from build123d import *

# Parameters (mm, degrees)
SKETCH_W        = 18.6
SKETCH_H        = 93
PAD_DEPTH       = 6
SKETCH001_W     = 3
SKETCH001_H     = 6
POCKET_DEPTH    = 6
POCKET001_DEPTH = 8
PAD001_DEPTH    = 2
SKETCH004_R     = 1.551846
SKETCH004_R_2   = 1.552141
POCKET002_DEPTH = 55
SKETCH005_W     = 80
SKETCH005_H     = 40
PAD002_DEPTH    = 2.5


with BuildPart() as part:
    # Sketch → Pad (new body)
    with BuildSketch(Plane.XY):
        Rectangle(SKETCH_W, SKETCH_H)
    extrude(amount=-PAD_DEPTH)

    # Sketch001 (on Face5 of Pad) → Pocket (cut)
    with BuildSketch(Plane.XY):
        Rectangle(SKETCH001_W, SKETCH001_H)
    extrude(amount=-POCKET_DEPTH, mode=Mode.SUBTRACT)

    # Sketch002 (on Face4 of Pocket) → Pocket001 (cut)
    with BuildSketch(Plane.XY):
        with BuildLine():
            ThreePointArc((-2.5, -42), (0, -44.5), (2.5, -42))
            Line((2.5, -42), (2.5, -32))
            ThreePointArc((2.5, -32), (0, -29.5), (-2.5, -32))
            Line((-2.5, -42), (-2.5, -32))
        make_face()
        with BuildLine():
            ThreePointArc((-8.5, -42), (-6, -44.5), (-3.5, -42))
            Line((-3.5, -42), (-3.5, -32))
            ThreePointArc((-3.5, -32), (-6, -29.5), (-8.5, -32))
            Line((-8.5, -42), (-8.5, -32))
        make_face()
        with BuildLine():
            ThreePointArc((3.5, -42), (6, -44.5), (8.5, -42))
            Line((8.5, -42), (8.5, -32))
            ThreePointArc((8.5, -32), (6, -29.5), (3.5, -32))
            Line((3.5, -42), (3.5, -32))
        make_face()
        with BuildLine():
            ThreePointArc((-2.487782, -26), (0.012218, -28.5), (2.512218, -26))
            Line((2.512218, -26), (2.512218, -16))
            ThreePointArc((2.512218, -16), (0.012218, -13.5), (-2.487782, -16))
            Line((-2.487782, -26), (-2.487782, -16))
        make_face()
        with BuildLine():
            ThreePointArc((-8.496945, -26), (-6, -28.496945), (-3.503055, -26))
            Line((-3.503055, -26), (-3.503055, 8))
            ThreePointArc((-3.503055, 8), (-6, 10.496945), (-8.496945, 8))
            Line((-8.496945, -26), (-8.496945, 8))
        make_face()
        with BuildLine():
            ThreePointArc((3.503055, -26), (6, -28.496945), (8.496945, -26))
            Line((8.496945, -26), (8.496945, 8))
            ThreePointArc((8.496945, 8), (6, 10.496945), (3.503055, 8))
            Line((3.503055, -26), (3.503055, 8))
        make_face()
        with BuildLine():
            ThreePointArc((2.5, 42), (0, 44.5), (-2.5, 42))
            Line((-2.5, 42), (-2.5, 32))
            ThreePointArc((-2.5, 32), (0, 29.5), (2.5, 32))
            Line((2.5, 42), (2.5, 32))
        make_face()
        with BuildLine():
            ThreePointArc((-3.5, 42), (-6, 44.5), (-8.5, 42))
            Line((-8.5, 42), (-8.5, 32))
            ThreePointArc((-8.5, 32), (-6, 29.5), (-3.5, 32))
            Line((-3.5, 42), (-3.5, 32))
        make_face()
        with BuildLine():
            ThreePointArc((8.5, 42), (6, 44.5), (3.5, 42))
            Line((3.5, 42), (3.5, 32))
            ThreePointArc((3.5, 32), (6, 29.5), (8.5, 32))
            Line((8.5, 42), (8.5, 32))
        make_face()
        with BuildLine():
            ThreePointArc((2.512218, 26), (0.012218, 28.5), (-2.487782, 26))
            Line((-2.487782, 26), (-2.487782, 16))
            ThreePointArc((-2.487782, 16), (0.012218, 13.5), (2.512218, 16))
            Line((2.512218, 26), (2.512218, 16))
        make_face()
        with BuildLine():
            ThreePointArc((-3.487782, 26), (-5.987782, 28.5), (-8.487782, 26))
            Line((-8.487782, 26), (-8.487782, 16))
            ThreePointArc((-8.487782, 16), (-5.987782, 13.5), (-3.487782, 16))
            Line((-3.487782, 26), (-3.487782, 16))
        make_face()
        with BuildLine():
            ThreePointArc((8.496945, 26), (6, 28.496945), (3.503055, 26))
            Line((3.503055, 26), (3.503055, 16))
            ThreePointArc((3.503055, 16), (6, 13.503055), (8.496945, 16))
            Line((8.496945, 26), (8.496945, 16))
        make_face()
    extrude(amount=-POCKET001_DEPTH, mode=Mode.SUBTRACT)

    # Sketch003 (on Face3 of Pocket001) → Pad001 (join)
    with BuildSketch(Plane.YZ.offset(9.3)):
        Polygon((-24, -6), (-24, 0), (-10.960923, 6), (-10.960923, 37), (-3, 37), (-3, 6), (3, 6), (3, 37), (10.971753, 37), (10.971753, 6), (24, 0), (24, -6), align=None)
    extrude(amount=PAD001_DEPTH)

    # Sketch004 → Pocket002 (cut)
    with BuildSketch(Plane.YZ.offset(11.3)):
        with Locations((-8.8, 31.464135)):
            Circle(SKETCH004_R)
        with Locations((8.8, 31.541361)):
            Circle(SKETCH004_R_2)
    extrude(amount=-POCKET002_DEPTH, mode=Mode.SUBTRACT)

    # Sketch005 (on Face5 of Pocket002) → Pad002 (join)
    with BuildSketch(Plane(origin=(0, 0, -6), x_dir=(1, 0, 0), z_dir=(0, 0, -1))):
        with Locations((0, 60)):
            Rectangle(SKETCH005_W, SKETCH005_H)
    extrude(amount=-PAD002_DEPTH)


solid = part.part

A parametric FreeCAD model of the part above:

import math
import FreeCAD as App
import Part
import Sketcher
from FreeCAD import Vector


def add_polygon(sketch, points):
    """Adds a closed chain of lines whose ends are joined by coincident constraints."""
    first, n = sketch.GeometryCount, len(points)
    for a, b in zip(points, points[1:] + points[:1]):
        sketch.addGeometry(Part.LineSegment(App.Vector(*a, 0), App.Vector(*b, 0)), False)
    for i in range(n):
        sketch.addConstraint(Sketcher.Constraint("Coincident", first + i, 2, first + (i + 1) % n, 1))

doc = App.newDocument("Part")
body = doc.addObject("PartDesign::Body", "Body")

# Sketch on XY plane
sketch1 = doc.addObject("Sketcher::SketchObject", "Sketch")
body.addObject(sketch1)
sketch1.AttachmentSupport = (doc.XY_Plane, [""])
sketch1.MapMode = "FlatFace"
add_polygon(sketch1, [(-9, 46), (-9, -46), (9, -46), (9, 46)])  # lines 0-3
sketch1.addConstraint(Sketcher.Constraint("Vertical", 0))
sketch1.addConstraint(Sketcher.Constraint("Horizontal", 1))
sketch1.addConstraint(Sketcher.Constraint("Vertical", 2))
sketch1.addConstraint(Sketcher.Constraint("Horizontal", 3))
sketch1.addConstraint(Sketcher.Constraint("Symmetric", 0, 2, 2, 2, -1, 1))
sketch1.addConstraint(Sketcher.Constraint("DistanceY", 0, 2, 0, 1, 93.0))
sketch1.addConstraint(Sketcher.Constraint("DistanceX", 1, 1, 1, 2, 18.6))
pad1 = doc.addObject("PartDesign::Pad", "Pad")
body.addObject(pad1)
pad1.Profile = sketch1
pad1.Length = 6
pad1.Reversed = True

# Sketch on XY plane
sketch2 = doc.addObject("Sketcher::SketchObject", "Sketch001")
body.addObject(sketch2)
sketch2.AttachmentSupport = (doc.XY_Plane, [""])
sketch2.MapMode = "FlatFace"
add_polygon(sketch2, [(-1.5, 3), (-1.5, -3), (1.5, -3), (1.5, 3)])  # lines 0-3
sketch2.addConstraint(Sketcher.Constraint("Vertical", 0))
sketch2.addConstraint(Sketcher.Constraint("Horizontal", 1))
sketch2.addConstraint(Sketcher.Constraint("Vertical", 2))
sketch2.addConstraint(Sketcher.Constraint("Horizontal", 3))
sketch2.addConstraint(Sketcher.Constraint("Symmetric", 0, 2, 2, 2, -1, 1))
sketch2.addConstraint(Sketcher.Constraint("DistanceX", 1, 1, 1, 2, 3.0))
sketch2.addConstraint(Sketcher.Constraint("DistanceY", 0, 2, 0, 1, 6.0))
pocket1 = doc.addObject("PartDesign::Pocket", "Pocket")
body.addObject(pocket1)
pocket1.Profile = sketch2
pocket1.Length = 6

# Sketch on XY plane
sketch3 = doc.addObject("Sketcher::SketchObject", "Sketch002")
body.addObject(sketch3)
sketch3.AttachmentSupport = (doc.XY_Plane, [""])
sketch3.MapMode = "FlatFace"
sketch3.addGeometry(Part.ArcOfCircle(Part.Circle(Vector(0, -42, 0), Vector(0, 0, 1), 2.5), math.radians(180), math.radians(360)), False)
sketch3.addGeometry(Part.LineSegment(Vector(2.5, -42, 0), Vector(2.5, -32, 0)), False)
sketch3.addGeometry(Part.ArcOfCircle(Part.Circle(Vector(0, -32, 0), Vector(0, 0, 1), 2.5), math.radians(0), math.radians(180)), False)
sketch3.addGeometry(Part.LineSegment(Vector(-2.5, -32, 0), Vector(-2.5, -42, 0)), False)
sketch3.addGeometry(Part.ArcOfCircle(Part.Circle(Vector(-6, -42, 0), Vector(0, 0, 1), 2.5), math.radians(180), math.radians(360)), False)
sketch3.addGeometry(Part.LineSegment(Vector(-3.5, -42, 0), Vector(-3.5, -32, 0)), False)
sketch3.addGeometry(Part.ArcOfCircle(Part.Circle(Vector(-6, -32, 0), Vector(0, 0, 1), 2.5), math.radians(0), math.radians(180)), False)
sketch3.addGeometry(Part.LineSegment(Vector(-8.5, -32, 0), Vector(-8.5, -42, 0)), False)
sketch3.addGeometry(Part.ArcOfCircle(Part.Circle(Vector(6, -42, 0), Vector(0, 0, 1), 2.5), math.radians(180), math.radians(360)), False)
sketch3.addGeometry(Part.LineSegment(Vector(8.5, -42, 0), Vector(8.5, -32, 0)), False)
sketch3.addGeometry(Part.ArcOfCircle(Part.Circle(Vector(6, -32, 0), Vector(0, 0, 1), 2.5), math.radians(0), math.radians(180)), False)
sketch3.addGeometry(Part.LineSegment(Vector(3.5, -32, 0), Vector(3.5, -42, 0)), False)
sketch3.addGeometry(Part.ArcOfCircle(Part.Circle(Vector(0, -26, 0), Vector(0, 0, 1), 2.5), math.radians(180), math.radians(360)), False)
sketch3.addGeometry(Part.LineSegment(Vector(2.5, -26, 0), Vector(2.5, -16, 0)), False)
sketch3.addGeometry(Part.ArcOfCircle(Part.Circle(Vector(0, -16, 0), Vector(0, 0, 1), 2.5), math.radians(0), math.radians(180)), False)
sketch3.addGeometry(Part.LineSegment(Vector(-2.5, -16, 0), Vector(-2.5, -26, 0)), False)
sketch3.addGeometry(Part.ArcOfCircle(Part.Circle(Vector(-6, -26, 0), Vector(0, 0, 1), 2.5), math.radians(180), math.radians(360)), False)
sketch3.addGeometry(Part.LineSegment(Vector(-3.5, -26, 0), Vector(-3.5, 8, 0)), False)
sketch3.addGeometry(Part.ArcOfCircle(Part.Circle(Vector(-6, 8, 0), Vector(0, 0, 1), 2.5), math.radians(0), math.radians(180)), False)
sketch3.addGeometry(Part.LineSegment(Vector(-8.5, 8, 0), Vector(-8.5, -26, 0)), False)
sketch3.addGeometry(Part.ArcOfCircle(Part.Circle(Vector(6, -26, 0), Vector(0, 0, 1), 2.5), math.radians(180), math.radians(360)), False)
sketch3.addGeometry(Part.LineSegment(Vector(8.5, -26, 0), Vector(8.5, 8, 0)), False)
sketch3.addGeometry(Part.ArcOfCircle(Part.Circle(Vector(6, 8, 0), Vector(0, 0, 1), 2.5), math.radians(0), math.radians(180)), False)
sketch3.addGeometry(Part.LineSegment(Vector(3.5, 8, 0), Vector(3.5, -26, 0)), False)
sketch3.addGeometry(Part.ArcOfCircle(Part.Circle(Vector(0, 42, 0), Vector(0, 0, 1), 2.5), math.radians(0), math.radians(180)), False)
sketch3.addGeometry(Part.LineSegment(Vector(-2.5, 42, 0), Vector(-2.5, 32, 0)), False)
sketch3.addGeometry(Part.ArcOfCircle(Part.Circle(Vector(0, 32, 0), Vector(0, 0, 1), 2.5), math.radians(180), math.radians(360)), False)
sketch3.addGeometry(Part.LineSegment(Vector(2.5, 32, 0), Vector(2.5, 42, 0)), False)
sketch3.addGeometry(Part.ArcOfCircle(Part.Circle(Vector(-6, 42, 0), Vector(0, 0, 1), 2.5), math.radians(0), math.radians(180)), False)
sketch3.addGeometry(Part.LineSegment(Vector(-8.5, 42, 0), Vector(-8.5, 32, 0)), False)
sketch3.addGeometry(Part.ArcOfCircle(Part.Circle(Vector(-6, 32, 0), Vector(0, 0, 1), 2.5), math.radians(180), math.radians(360)), False)
sketch3.addGeometry(Part.LineSegment(Vector(-3.5, 32, 0), Vector(-3.5, 42, 0)), False)
sketch3.addGeometry(Part.ArcOfCircle(Part.Circle(Vector(6, 42, 0), Vector(0, 0, 1), 2.5), math.radians(0), math.radians(180)), False)
sketch3.addGeometry(Part.LineSegment(Vector(3.5, 42, 0), Vector(3.5, 32, 0)), False)
sketch3.addGeometry(Part.ArcOfCircle(Part.Circle(Vector(6, 32, 0), Vector(0, 0, 1), 2.5), math.radians(180), math.radians(360)), False)
sketch3.addGeometry(Part.LineSegment(Vector(8.5, 32, 0), Vector(8.5, 42, 0)), False)
sketch3.addGeometry(Part.ArcOfCircle(Part.Circle(Vector(0, 26, 0), Vector(0, 0, 1), 2.5), math.radians(0), math.radians(180)), False)
sketch3.addGeometry(Part.LineSegment(Vector(-2.5, 26, 0), Vector(-2.5, 16, 0)), False)
sketch3.addGeometry(Part.ArcOfCircle(Part.Circle(Vector(0, 16, 0), Vector(0, 0, 1), 2.5), math.radians(180), math.radians(360)), False)
sketch3.addGeometry(Part.LineSegment(Vector(2.5, 16, 0), Vector(2.5, 26, 0)), False)
sketch3.addGeometry(Part.ArcOfCircle(Part.Circle(Vector(-6, 26, 0), Vector(0, 0, 1), 2.5), math.radians(0), math.radians(180)), False)
sketch3.addGeometry(Part.LineSegment(Vector(-8.5, 26, 0), Vector(-8.5, 16, 0)), False)
sketch3.addGeometry(Part.ArcOfCircle(Part.Circle(Vector(-6, 16, 0), Vector(0, 0, 1), 2.5), math.radians(180), math.radians(360)), False)
sketch3.addGeometry(Part.LineSegment(Vector(-3.5, 16, 0), Vector(-3.5, 26, 0)), False)
sketch3.addGeometry(Part.ArcOfCircle(Part.Circle(Vector(6, 26, 0), Vector(0, 0, 1), 2.5), math.radians(0), math.radians(180)), False)
sketch3.addGeometry(Part.LineSegment(Vector(3.5, 26, 0), Vector(3.5, 16, 0)), False)
sketch3.addGeometry(Part.ArcOfCircle(Part.Circle(Vector(6, 16, 0), Vector(0, 0, 1), 2.5), math.radians(180), math.radians(360)), False)
sketch3.addGeometry(Part.LineSegment(Vector(8.5, 16, 0), Vector(8.5, 26, 0)), False)
sketch3.addConstraint(Sketcher.Constraint("Tangent", 0, 2, 1, 1))
sketch3.addConstraint(Sketcher.Constraint("Tangent", 1, 2, 2, 1))
sketch3.addConstraint(Sketcher.Constraint("Tangent", 2, 2, 3, 1))
sketch3.addConstraint(Sketcher.Constraint("Tangent", 3, 2, 0, 1))
sketch3.addConstraint(Sketcher.Constraint("Tangent", 4, 2, 5, 1))
sketch3.addConstraint(Sketcher.Constraint("Tangent", 5, 2, 6, 1))
sketch3.addConstraint(Sketcher.Constraint("Tangent", 6, 2, 7, 1))
sketch3.addConstraint(Sketcher.Constraint("Tangent", 7, 2, 4, 1))
sketch3.addConstraint(Sketcher.Constraint("Tangent", 8, 2, 9, 1))
sketch3.addConstraint(Sketcher.Constraint("Tangent", 9, 2, 10, 1))
sketch3.addConstraint(Sketcher.Constraint("Tangent", 10, 2, 11, 1))
sketch3.addConstraint(Sketcher.Constraint("Tangent", 11, 2, 8, 1))
sketch3.addConstraint(Sketcher.Constraint("Tangent", 12, 2, 13, 1))
sketch3.addConstraint(Sketcher.Constraint("Tangent", 13, 2, 14, 1))
sketch3.addConstraint(Sketcher.Constraint("Tangent", 14, 2, 15, 1))
sketch3.addConstraint(Sketcher.Constraint("Tangent", 15, 2, 12, 1))
sketch3.addConstraint(Sketcher.Constraint("Tangent", 16, 2, 17, 1))
sketch3.addConstraint(Sketcher.Constraint("Tangent", 17, 2, 18, 1))
sketch3.addConstraint(Sketcher.Constraint("Tangent", 18, 2, 19, 1))
sketch3.addConstraint(Sketcher.Constraint("Tangent", 19, 2, 16, 1))
sketch3.addConstraint(Sketcher.Constraint("Tangent", 20, 2, 21, 1))
sketch3.addConstraint(Sketcher.Constraint("Tangent", 21, 2, 22, 1))
sketch3.addConstraint(Sketcher.Constraint("Tangent", 22, 2, 23, 1))
sketch3.addConstraint(Sketcher.Constraint("Tangent", 23, 2, 20, 1))
sketch3.addConstraint(Sketcher.Constraint("Tangent", 24, 2, 25, 1))
sketch3.addConstraint(Sketcher.Constraint("Tangent", 25, 2, 26, 1))
sketch3.addConstraint(Sketcher.Constraint("Tangent", 26, 2, 27, 1))
sketch3.addConstraint(Sketcher.Constraint("Tangent", 27, 2, 24, 1))
sketch3.addConstraint(Sketcher.Constraint("Tangent", 28, 2, 29, 1))
sketch3.addConstraint(Sketcher.Constraint("Tangent", 29, 2, 30, 1))
sketch3.addConstraint(Sketcher.Constraint("Tangent", 30, 2, 31, 1))
sketch3.addConstraint(Sketcher.Constraint("Tangent", 31, 2, 28, 1))
sketch3.addConstraint(Sketcher.Constraint("Tangent", 32, 2, 33, 1))
sketch3.addConstraint(Sketcher.Constraint("Tangent", 33, 2, 34, 1))
sketch3.addConstraint(Sketcher.Constraint("Tangent", 34, 2, 35, 1))
sketch3.addConstraint(Sketcher.Constraint("Tangent", 35, 2, 32, 1))
sketch3.addConstraint(Sketcher.Constraint("Tangent", 36, 2, 37, 1))
sketch3.addConstraint(Sketcher.Constraint("Tangent", 37, 2, 38, 1))
sketch3.addConstraint(Sketcher.Constraint("Tangent", 38, 2, 39, 1))
sketch3.addConstraint(Sketcher.Constraint("Tangent", 39, 2, 36, 1))
sketch3.addConstraint(Sketcher.Constraint("Tangent", 40, 2, 41, 1))
sketch3.addConstraint(Sketcher.Constraint("Tangent", 41, 2, 42, 1))
sketch3.addConstraint(Sketcher.Constraint("Tangent", 42, 2, 43, 1))
sketch3.addConstraint(Sketcher.Constraint("Tangent", 43, 2, 40, 1))
sketch3.addConstraint(Sketcher.Constraint("Tangent", 44, 2, 45, 1))
sketch3.addConstraint(Sketcher.Constraint("Tangent", 45, 2, 46, 1))
sketch3.addConstraint(Sketcher.Constraint("Tangent", 46, 2, 47, 1))
sketch3.addConstraint(Sketcher.Constraint("Tangent", 47, 2, 44, 1))
sketch3.addConstraint(Sketcher.Constraint("Vertical", 1))
sketch3.addConstraint(Sketcher.Constraint("Vertical", 3))
sketch3.addConstraint(Sketcher.Constraint("Vertical", 5))
sketch3.addConstraint(Sketcher.Constraint("Vertical", 7))
sketch3.addConstraint(Sketcher.Constraint("Vertical", 9))
sketch3.addConstraint(Sketcher.Constraint("Vertical", 11))
sketch3.addConstraint(Sketcher.Constraint("Vertical", 13))
sketch3.addConstraint(Sketcher.Constraint("Vertical", 15))
sketch3.addConstraint(Sketcher.Constraint("Vertical", 17))
sketch3.addConstraint(Sketcher.Constraint("Vertical", 19))
sketch3.addConstraint(Sketcher.Constraint("Vertical", 21))
sketch3.addConstraint(Sketcher.Constraint("Vertical", 23))
sketch3.addConstraint(Sketcher.Constraint("Vertical", 25))
sketch3.addConstraint(Sketcher.Constraint("Vertical", 27))
sketch3.addConstraint(Sketcher.Constraint("Vertical", 29))
sketch3.addConstraint(Sketcher.Constraint("Vertical", 31))
sketch3.addConstraint(Sketcher.Constraint("Vertical", 33))
sketch3.addConstraint(Sketcher.Constraint("Vertical", 35))
sketch3.addConstraint(Sketcher.Constraint("Vertical", 37))
sketch3.addConstraint(Sketcher.Constraint("Vertical", 39))
sketch3.addConstraint(Sketcher.Constraint("Vertical", 41))
sketch3.addConstraint(Sketcher.Constraint("Vertical", 43))
sketch3.addConstraint(Sketcher.Constraint("Vertical", 45))
sketch3.addConstraint(Sketcher.Constraint("Vertical", 47))
sketch3.addConstraint(Sketcher.Constraint("Equal", 2, 4))
sketch3.addConstraint(Sketcher.Constraint("Equal", 6, 8))
sketch3.addConstraint(Sketcher.Constraint("Equal", 10, 12))
sketch3.addConstraint(Sketcher.Constraint("Equal", 18, 20))
sketch3.addConstraint(Sketcher.Constraint("Equal", 14, 24))
sketch3.addConstraint(Sketcher.Constraint("Equal", 26, 28))
sketch3.addConstraint(Sketcher.Constraint("Equal", 30, 32))
sketch3.addConstraint(Sketcher.Constraint("Equal", 34, 36))
sketch3.addConstraint(Sketcher.Constraint("Equal", 38, 40))
sketch3.addConstraint(Sketcher.Constraint("Equal", 22, 44))
sketch3.addConstraint(Sketcher.Constraint("Symmetric", 0, 3, 24, 3, -1, 1))
sketch3.addConstraint(Sketcher.Constraint("Symmetric", 8, 3, 28, 3, -1, 1))
sketch3.addConstraint(Sketcher.Constraint("Symmetric", 4, 3, 32, 3, -1, 1))
sketch3.addConstraint(Sketcher.Constraint("Symmetric", 16, 3, 44, 3, -1, 1))
sketch3.addConstraint(Sketcher.Constraint("Symmetric", 4, 3, 8, 3, -2))
sketch3.addConstraint(Sketcher.Constraint("Symmetric", 16, 3, 20, 3, -2))
sketch3.addConstraint(Sketcher.Constraint("Symmetric", 2, 3, 26, 3, -1))
sketch3.addConstraint(Sketcher.Constraint("Symmetric", 12, 3, 36, 3, -1))
sketch3.addConstraint(Sketcher.Constraint("Horizontal", 0, 3, 4, 3))
sketch3.addConstraint(Sketcher.Constraint("Horizontal", 2, 3, 6, 3))
sketch3.addConstraint(Sketcher.Constraint("Horizontal", 6, 3, 10, 3))
sketch3.addConstraint(Sketcher.Constraint("Horizontal", 12, 3, 16, 3))
sketch3.addConstraint(Sketcher.Constraint("Horizontal", 18, 3, 22, 3))
sketch3.addConstraint(Sketcher.Constraint("Horizontal", 26, 3, 30, 3))
sketch3.addConstraint(Sketcher.Constraint("Horizontal", 30, 3, 34, 3))
sketch3.addConstraint(Sketcher.Constraint("Horizontal", 36, 3, 40, 3))
sketch3.addConstraint(Sketcher.Constraint("Horizontal", 38, 3, 42, 3))
sketch3.addConstraint(Sketcher.Constraint("Horizontal", 42, 3, 46, 3))
sketch3.addConstraint(Sketcher.Constraint("Vertical", 6, 3, 16, 3))
sketch3.addConstraint(Sketcher.Constraint("Equal", 11, 13))
sketch3.addConstraint(Sketcher.Constraint("Equal", 35, 37))
sketch3.addConstraint(Sketcher.Constraint("Radius", 0, 2.5))
sketch3.addConstraint(Sketcher.Constraint("DistanceY", 1, 1, 1, 2, 10.0))
sketch3.addConstraint(Sketcher.Constraint("DistanceY", 17, 1, 17, 2, 34.0))
sketch3.addConstraint(Sketcher.Constraint("DistanceY", 0, 3, -1, 1, 42.0))
sketch3.addConstraint(Sketcher.Constraint("DistanceX", 4, 3, -1, 1, 6.0))
sketch3.addConstraint(Sketcher.Constraint("DistanceY", 12, 3, -1, 1, 26.0))
sketch3.addConstraint(Sketcher.Constraint("Radius", 16, 2.496945))
sketch3.addConstraint(Sketcher.Constraint("DistanceX", 40, 2, -1, 1, 8.487782))
sketch3.addConstraint(Sketcher.Constraint("DistanceX", -1, 1, 12, 3, 0.012218))
pocket2 = doc.addObject("PartDesign::Pocket", "Pocket001")
body.addObject(pocket2)
pocket2.Profile = sketch3
pocket2.Length = 8

# Sketch on YZ plane
sketch4 = doc.addObject("Sketcher::SketchObject", "Sketch003")
body.addObject(sketch4)
sketch4.AttachmentSupport = (doc.YZ_Plane, [""])
sketch4.MapMode = "FlatFace"
sketch4.AttachmentOffset = App.Placement(Vector(0, 0, 9.3), App.Rotation())
add_polygon(sketch4, [(-24, 0), (-24, -6), (24, -6), (24, 0), (11, 6), (11, 37), (3, 37), (3, 6), (-3, 6), (-3, 37), (-11, 37), (-11, 6)])  # lines 0-11
sketch4.addConstraint(Sketcher.Constraint("Vertical", 0))
sketch4.addConstraint(Sketcher.Constraint("Horizontal", 1))
sketch4.addConstraint(Sketcher.Constraint("Vertical", 2))
sketch4.addConstraint(Sketcher.Constraint("Vertical", 4))
sketch4.addConstraint(Sketcher.Constraint("Horizontal", 5))
sketch4.addConstraint(Sketcher.Constraint("Vertical", 6))
sketch4.addConstraint(Sketcher.Constraint("Horizontal", 7))
sketch4.addConstraint(Sketcher.Constraint("Vertical", 8))
sketch4.addConstraint(Sketcher.Constraint("Horizontal", 9))
sketch4.addConstraint(Sketcher.Constraint("Vertical", 10))
sketch4.addConstraint(Sketcher.Constraint("Symmetric", 2, 2, 11, 2, -1, 1))
sketch4.addConstraint(Sketcher.Constraint("Symmetric", 5, 2, 8, 2, -2))
sketch4.addConstraint(Sketcher.Constraint("PointOnObject", 2, 2, -1))
sketch4.addConstraint(Sketcher.Constraint("Horizontal", 3, 2, 6, 2))
sketch4.addConstraint(Sketcher.Constraint("Horizontal", 7, 2, 10, 2))
sketch4.addConstraint(Sketcher.Constraint("Equal", 7, 0))
sketch4.addConstraint(Sketcher.Constraint("DistanceX", 1, 1, 1, 2, 48.0))
sketch4.addConstraint(Sketcher.Constraint("DistanceX", 7, 2, 7, 1, 6.0))
sketch4.addConstraint(Sketcher.Constraint("DistanceY", 4, 1, 4, 2, 31.0))
sketch4.addConstraint(Sketcher.Constraint("DistanceY", -1, 1, 3, 2, 6.0))
sketch4.addConstraint(Sketcher.Constraint("Distance", 11, 14.353311))
sketch4.addConstraint(Sketcher.Constraint("DistanceX", 5, 2, 5, 1, 7.971753))
pad2 = doc.addObject("PartDesign::Pad", "Pad001")
body.addObject(pad2)
pad2.Profile = sketch4
pad2.Length = 2

# Sketch on YZ plane
sketch5 = doc.addObject("Sketcher::SketchObject", "Sketch004")
body.addObject(sketch5)
sketch5.AttachmentSupport = (doc.YZ_Plane, [""])
sketch5.MapMode = "FlatFace"
sketch5.AttachmentOffset = App.Placement(Vector(0, 0, 11.3), App.Rotation())
sketch5.addGeometry(Part.Circle(Vector(-8.8, 31.5, 0), Vector(0, 0, 1), 1.6), False)
sketch5.addGeometry(Part.Circle(Vector(8.8, 31.5, 0), Vector(0, 0, 1), 1.6), False)
sketch5.addConstraint(Sketcher.Constraint("DistanceX", 0, 3, -1, 1, 8.8))
sketch5.addConstraint(Sketcher.Constraint("DistanceX", -1, 1, 1, 3, 8.8))
sketch5.addConstraint(Sketcher.Constraint("Diameter", 1, 3.104282))
sketch5.addConstraint(Sketcher.Constraint("Diameter", 0, 3.103692))
sketch5.addConstraint(Sketcher.Constraint("DistanceY", -1, 1, 1, 3, 31.541361))
sketch5.addConstraint(Sketcher.Constraint("DistanceY", -1, 1, 0, 3, 31.464135))
pocket3 = doc.addObject("PartDesign::Pocket", "Pocket002")
body.addObject(pocket3)
pocket3.Profile = sketch5
pocket3.Length = 55

# Sketch on XY plane
sketch6 = doc.addObject("Sketcher::SketchObject", "Sketch005")
body.addObject(sketch6)
sketch6.AttachmentSupport = (doc.XY_Plane, [""])
sketch6.MapMode = "FlatFace"
sketch6.AttachmentOffset = App.Placement(Vector(0, 0, -6), App.Rotation())
add_polygon(sketch6, [(-40, -80), (-40, -40), (40, -40), (40, -80)])  # lines 0-3
sketch6.addConstraint(Sketcher.Constraint("Vertical", 0))
sketch6.addConstraint(Sketcher.Constraint("Horizontal", 1))
sketch6.addConstraint(Sketcher.Constraint("Vertical", 2))
sketch6.addConstraint(Sketcher.Constraint("Horizontal", 3))
sketch6.addConstraint(Sketcher.Constraint("DistanceX", 1, 1, 1, 2, 80.0))
sketch6.addConstraint(Sketcher.Constraint("DistanceY", 0, 1, 0, 2, 40.0))
sketch6.addConstraint(Sketcher.Constraint("DistanceX", 0, 2, -1, 1, 40.0))
sketch6.addConstraint(Sketcher.Constraint("DistanceY", 0, 2, -1, 1, 40.0))
pad3 = doc.addObject("PartDesign::Pad", "Pad002")
body.addObject(pad3)
pad3.Profile = sketch6
pad3.Length = 2.5

doc.recompute()
